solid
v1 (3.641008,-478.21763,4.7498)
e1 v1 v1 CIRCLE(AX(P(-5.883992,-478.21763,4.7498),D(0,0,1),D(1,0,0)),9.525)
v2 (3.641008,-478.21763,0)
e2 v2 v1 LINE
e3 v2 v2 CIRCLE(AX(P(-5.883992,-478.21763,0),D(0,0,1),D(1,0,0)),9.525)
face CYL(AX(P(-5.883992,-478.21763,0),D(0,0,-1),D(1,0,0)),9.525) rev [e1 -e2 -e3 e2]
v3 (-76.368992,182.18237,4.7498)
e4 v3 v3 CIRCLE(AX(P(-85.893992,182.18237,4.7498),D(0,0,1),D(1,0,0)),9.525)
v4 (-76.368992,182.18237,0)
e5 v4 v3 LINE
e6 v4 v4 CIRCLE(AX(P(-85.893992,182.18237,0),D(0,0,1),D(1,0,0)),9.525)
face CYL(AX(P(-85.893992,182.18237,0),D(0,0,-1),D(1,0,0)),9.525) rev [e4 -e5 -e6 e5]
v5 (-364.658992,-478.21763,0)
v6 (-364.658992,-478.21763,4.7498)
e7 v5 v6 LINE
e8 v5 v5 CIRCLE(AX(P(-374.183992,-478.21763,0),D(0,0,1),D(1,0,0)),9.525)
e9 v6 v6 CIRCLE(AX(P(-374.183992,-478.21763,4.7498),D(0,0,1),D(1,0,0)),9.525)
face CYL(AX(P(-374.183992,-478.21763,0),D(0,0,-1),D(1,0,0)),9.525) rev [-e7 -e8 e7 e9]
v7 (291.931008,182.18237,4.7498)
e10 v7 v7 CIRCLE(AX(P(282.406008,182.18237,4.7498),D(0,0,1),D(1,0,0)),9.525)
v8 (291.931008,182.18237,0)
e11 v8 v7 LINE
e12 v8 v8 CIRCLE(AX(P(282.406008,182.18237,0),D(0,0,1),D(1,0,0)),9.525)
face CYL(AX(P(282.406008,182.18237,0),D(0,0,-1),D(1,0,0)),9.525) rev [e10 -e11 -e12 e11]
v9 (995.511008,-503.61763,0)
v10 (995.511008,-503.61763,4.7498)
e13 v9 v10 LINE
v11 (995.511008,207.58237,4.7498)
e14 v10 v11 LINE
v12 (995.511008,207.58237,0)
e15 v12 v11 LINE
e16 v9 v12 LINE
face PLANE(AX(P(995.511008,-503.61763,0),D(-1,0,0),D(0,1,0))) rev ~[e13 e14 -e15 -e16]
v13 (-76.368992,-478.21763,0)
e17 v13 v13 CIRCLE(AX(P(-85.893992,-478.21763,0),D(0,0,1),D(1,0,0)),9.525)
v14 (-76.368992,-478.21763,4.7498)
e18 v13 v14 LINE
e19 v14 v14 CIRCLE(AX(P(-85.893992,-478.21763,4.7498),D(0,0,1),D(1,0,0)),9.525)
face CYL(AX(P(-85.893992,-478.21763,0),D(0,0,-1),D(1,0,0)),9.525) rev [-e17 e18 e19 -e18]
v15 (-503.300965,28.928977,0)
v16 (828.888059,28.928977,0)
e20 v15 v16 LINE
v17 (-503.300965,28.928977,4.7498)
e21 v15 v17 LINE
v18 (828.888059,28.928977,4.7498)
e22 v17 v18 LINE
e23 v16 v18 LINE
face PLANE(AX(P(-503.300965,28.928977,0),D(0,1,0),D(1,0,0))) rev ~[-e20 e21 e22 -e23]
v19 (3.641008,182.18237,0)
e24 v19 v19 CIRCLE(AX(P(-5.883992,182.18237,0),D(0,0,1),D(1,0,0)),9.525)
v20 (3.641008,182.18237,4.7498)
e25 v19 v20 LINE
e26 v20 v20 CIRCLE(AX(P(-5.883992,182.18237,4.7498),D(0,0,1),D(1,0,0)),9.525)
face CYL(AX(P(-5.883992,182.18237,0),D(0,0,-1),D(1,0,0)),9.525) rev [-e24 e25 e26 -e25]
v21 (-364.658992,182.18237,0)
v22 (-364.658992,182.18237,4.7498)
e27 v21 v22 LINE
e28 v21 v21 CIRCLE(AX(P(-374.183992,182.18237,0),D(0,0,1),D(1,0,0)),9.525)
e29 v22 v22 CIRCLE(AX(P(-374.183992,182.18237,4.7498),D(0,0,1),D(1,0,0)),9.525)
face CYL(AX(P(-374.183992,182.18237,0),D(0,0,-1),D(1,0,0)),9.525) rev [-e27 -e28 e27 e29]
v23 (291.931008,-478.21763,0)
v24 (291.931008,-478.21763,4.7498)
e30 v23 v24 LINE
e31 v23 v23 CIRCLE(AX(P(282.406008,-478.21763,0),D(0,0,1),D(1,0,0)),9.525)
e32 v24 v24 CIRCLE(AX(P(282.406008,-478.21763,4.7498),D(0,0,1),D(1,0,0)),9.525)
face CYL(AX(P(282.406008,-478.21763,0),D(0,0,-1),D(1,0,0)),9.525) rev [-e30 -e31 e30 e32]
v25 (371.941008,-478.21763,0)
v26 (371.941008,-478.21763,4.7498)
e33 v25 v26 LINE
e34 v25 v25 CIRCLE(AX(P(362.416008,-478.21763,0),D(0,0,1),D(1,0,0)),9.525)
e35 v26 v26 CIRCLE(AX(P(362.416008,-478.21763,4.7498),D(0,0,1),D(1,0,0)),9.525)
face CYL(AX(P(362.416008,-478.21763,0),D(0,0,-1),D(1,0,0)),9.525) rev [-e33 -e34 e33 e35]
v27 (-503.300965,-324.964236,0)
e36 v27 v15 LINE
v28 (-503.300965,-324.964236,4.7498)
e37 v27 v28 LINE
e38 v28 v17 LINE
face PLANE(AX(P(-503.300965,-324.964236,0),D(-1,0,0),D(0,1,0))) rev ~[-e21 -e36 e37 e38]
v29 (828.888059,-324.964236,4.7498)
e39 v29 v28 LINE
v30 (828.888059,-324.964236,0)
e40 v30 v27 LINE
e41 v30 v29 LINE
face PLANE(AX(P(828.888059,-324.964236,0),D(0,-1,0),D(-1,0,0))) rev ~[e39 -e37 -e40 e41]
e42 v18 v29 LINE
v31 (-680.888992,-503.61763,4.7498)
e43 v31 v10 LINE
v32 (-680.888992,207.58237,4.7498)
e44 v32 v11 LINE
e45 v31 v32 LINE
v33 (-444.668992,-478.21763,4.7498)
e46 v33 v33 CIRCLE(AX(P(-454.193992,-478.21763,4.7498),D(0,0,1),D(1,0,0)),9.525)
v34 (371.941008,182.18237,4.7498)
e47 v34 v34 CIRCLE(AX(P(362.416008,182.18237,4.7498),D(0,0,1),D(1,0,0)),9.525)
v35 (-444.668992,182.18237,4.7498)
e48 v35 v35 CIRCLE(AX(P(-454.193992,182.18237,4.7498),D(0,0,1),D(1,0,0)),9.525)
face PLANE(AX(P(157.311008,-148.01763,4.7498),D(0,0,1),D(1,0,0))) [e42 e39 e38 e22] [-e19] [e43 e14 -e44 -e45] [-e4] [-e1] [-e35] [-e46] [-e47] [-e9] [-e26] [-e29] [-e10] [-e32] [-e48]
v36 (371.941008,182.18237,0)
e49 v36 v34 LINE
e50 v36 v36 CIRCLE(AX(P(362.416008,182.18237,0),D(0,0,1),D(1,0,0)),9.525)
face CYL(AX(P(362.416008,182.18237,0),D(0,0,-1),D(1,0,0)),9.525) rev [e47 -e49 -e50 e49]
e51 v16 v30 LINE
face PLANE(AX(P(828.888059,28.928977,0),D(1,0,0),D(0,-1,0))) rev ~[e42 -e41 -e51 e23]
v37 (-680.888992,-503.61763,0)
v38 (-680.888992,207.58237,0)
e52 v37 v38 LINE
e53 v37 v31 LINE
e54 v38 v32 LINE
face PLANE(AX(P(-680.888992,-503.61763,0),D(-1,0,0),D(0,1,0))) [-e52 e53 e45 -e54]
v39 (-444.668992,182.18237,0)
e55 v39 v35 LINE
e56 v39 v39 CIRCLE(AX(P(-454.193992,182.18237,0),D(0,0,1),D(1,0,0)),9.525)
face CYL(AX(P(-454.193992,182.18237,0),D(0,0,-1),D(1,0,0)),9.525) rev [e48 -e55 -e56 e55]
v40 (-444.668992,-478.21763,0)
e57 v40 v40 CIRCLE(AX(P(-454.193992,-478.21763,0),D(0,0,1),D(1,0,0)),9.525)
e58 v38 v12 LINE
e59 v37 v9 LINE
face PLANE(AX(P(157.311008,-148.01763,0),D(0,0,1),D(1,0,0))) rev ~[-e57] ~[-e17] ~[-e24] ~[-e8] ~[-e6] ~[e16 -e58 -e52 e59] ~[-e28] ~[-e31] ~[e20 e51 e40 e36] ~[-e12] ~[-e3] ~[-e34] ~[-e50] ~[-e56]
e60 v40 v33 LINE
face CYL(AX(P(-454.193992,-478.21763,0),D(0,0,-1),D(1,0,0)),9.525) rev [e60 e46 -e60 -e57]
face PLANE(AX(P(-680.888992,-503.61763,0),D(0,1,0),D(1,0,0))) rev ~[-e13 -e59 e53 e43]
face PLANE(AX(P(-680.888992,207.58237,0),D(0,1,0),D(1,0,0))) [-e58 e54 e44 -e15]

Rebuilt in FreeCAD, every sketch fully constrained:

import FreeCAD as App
import Part
import Sketcher
Q = App.Units.Quantity


def add_polygon(sketch, points):
    """Adds a closed chain of lines whose ends are joined by coincident constraints."""
    first, n = sketch.GeometryCount, len(points)
    for a, b in zip(points, points[1:] + points[:1]):
        sketch.addGeometry(Part.LineSegment(App.Vector(*a, 0), App.Vector(*b, 0)), False)
    for i in range(n):
        sketch.addConstraint(Sketcher.Constraint("Coincident", first + i, 2, first + (i + 1) % n, 1))

doc = App.newDocument("Part")
body = doc.addObject("PartDesign::Body", "Body")

# Sketch on XY plane
sketch1 = body.newObject("Sketcher::SketchObject", "Sketch")
sketch1.AttachmentSupport = (doc.getObject("XY_Plane"), [""])
sketch1.MapMode = "FlatFace"
add_polygon(sketch1, [(-681, 208), (-681, -504), (996, -504), (996, 208)])  # lines 0-3
sketch1.addGeometry(Part.Circle(App.Vector(-454, -478, 0), App.Vector(0, 0, 1), 10), False)  # 4
sketch1.addGeometry(Part.Circle(App.Vector(-374, -478, 0), App.Vector(0, 0, 1), 10), False)  # 5
sketch1.addGeometry(Part.Circle(App.Vector(-86, -478, 0), App.Vector(0, 0, 1), 10), False)  # 6
sketch1.addGeometry(Part.Circle(App.Vector(-6, -478, 0), App.Vector(0, 0, 1), 10), False)  # 7
sketch1.addGeometry(Part.Circle(App.Vector(282, -478, 0), App.Vector(0, 0, 1), 10), False)  # 8
sketch1.addGeometry(Part.Circle(App.Vector(362, -478, 0), App.Vector(0, 0, 1), 10), False)  # 9
sketch1.addGeometry(Part.Circle(App.Vector(-454, 182, 0), App.Vector(0, 0, 1), 10), False)  # 10
sketch1.addGeometry(Part.Circle(App.Vector(-374, 182, 0), App.Vector(0, 0, 1), 10), False)  # 11
sketch1.addGeometry(Part.Circle(App.Vector(-86, 182, 0), App.Vector(0, 0, 1), 10), False)  # 12
sketch1.addGeometry(Part.Circle(App.Vector(-6, 182, 0), App.Vector(0, 0, 1), 10), False)  # 13
add_polygon(sketch1, [(-503, -325), (-503, 29), (829, 29), (829, -325)])  # lines 14-17
sketch1.addGeometry(Part.Circle(App.Vector(282, 182, 0), App.Vector(0, 0, 1), 10), False)  # 18
sketch1.addGeometry(Part.Circle(App.Vector(362, 182, 0), App.Vector(0, 0, 1), 10), False)  # 19
sketch1.addConstraint([
    Sketcher.Constraint("Vertical", 0),
    Sketcher.Constraint("Horizontal", 1),
    Sketcher.Constraint("Vertical", 2),
    Sketcher.Constraint("Horizontal", 3),
    Sketcher.Constraint("Vertical", 14),
    Sketcher.Constraint("Horizontal", 15),
    Sketcher.Constraint("Vertical", 16),
    Sketcher.Constraint("Horizontal", 17),
    Sketcher.Constraint("Equal", 4, 5),
    Sketcher.Constraint("Equal", 5, 6),
    Sketcher.Constraint("Equal", 6, 7),
    Sketcher.Constraint("Equal", 7, 8),
    Sketcher.Constraint("Equal", 8, 9),
    Sketcher.Constraint("Equal", 9, 10),
    Sketcher.Constraint("Equal", 10, 11),
    Sketcher.Constraint("Equal", 11, 12),
    Sketcher.Constraint("Equal", 12, 13),
    Sketcher.Constraint("Equal", 13, 18),
    Sketcher.Constraint("Equal", 18, 19),
    Sketcher.Constraint("Horizontal", 4, 3, 5, 3),
    Sketcher.Constraint("Horizontal", 5, 3, 6, 3),
    Sketcher.Constraint("Horizontal", 6, 3, 7, 3),
    Sketcher.Constraint("Horizontal", 7, 3, 8, 3),
    Sketcher.Constraint("Horizontal", 8, 3, 9, 3),
    Sketcher.Constraint("Horizontal", 10, 3, 11, 3),
    Sketcher.Constraint("Horizontal", 11, 3, 12, 3),
    Sketcher.Constraint("Horizontal", 12, 3, 13, 3),
    Sketcher.Constraint("Horizontal", 13, 3, 18, 3),
    Sketcher.Constraint("Horizontal", 18, 3, 19, 3),
    Sketcher.Constraint("Vertical", 4, 3, 10, 3),
    Sketcher.Constraint("Vertical", 5, 3, 11, 3),
    Sketcher.Constraint("Vertical", 6, 3, 12, 3),
    Sketcher.Constraint("Vertical", 7, 3, 13, 3),
    Sketcher.Constraint("Vertical", 8, 3, 18, 3),
    Sketcher.Constraint("Vertical", 9, 3, 19, 3),
    Sketcher.Constraint("Diameter", 4, Q("0.75 in")),
    Sketcher.Constraint("DistanceX", 1, 1, 1, 2, Q("66 in")),
    Sketcher.Constraint("DistanceY", 0, 2, 0, 1, Q("28 in")),
    Sketcher.Constraint("DistanceX", 4, 3, 8, 3, Q("29 in")),
    Sketcher.Constraint("DistanceX", 5, 3, 9, 3, Q("29 in")),
    Sketcher.Constraint("DistanceY", 4, 3, 10, 3, Q("26 in")),
    Sketcher.Constraint("DistanceY", 0, 2, 4, 3, Q("1 in")),
    Sketcher.Constraint("DistanceX", 4, 3, 6, 3, Q("14.5 in")),
    Sketcher.Constraint("DistanceX", 5, 3, 7, 3, Q("14.5 in")),
    Sketcher.Constraint("DistanceX", 4, 3, 5, 3, Q("3.15 in")),
    Sketcher.Constraint("DistanceX", 0, 2, 4, 3, Q("8.925 in")),
    Sketcher.Constraint("DistanceX", 15, 1, 15, 2, 1332.189024),
    Sketcher.Constraint("DistanceY", 14, 1, 14, 2, 353.893213),
    Sketcher.Constraint("DistanceX", 4, 3, -1, 1, 454.193992),
    Sketcher.Constraint("DistanceY", 4, 3, -1, 1, 478.21763),
    Sketcher.Constraint("DistanceX", -1, 1, 15, 2, 828.888059),
    Sketcher.Constraint("DistanceY", -1, 1, 14, 2, 28.928977),
])
pad1 = body.newObject("PartDesign::Pad", "Pad")
pad1.Profile = sketch1
pad1.Length = Q("0.187 in")

doc.recompute()
